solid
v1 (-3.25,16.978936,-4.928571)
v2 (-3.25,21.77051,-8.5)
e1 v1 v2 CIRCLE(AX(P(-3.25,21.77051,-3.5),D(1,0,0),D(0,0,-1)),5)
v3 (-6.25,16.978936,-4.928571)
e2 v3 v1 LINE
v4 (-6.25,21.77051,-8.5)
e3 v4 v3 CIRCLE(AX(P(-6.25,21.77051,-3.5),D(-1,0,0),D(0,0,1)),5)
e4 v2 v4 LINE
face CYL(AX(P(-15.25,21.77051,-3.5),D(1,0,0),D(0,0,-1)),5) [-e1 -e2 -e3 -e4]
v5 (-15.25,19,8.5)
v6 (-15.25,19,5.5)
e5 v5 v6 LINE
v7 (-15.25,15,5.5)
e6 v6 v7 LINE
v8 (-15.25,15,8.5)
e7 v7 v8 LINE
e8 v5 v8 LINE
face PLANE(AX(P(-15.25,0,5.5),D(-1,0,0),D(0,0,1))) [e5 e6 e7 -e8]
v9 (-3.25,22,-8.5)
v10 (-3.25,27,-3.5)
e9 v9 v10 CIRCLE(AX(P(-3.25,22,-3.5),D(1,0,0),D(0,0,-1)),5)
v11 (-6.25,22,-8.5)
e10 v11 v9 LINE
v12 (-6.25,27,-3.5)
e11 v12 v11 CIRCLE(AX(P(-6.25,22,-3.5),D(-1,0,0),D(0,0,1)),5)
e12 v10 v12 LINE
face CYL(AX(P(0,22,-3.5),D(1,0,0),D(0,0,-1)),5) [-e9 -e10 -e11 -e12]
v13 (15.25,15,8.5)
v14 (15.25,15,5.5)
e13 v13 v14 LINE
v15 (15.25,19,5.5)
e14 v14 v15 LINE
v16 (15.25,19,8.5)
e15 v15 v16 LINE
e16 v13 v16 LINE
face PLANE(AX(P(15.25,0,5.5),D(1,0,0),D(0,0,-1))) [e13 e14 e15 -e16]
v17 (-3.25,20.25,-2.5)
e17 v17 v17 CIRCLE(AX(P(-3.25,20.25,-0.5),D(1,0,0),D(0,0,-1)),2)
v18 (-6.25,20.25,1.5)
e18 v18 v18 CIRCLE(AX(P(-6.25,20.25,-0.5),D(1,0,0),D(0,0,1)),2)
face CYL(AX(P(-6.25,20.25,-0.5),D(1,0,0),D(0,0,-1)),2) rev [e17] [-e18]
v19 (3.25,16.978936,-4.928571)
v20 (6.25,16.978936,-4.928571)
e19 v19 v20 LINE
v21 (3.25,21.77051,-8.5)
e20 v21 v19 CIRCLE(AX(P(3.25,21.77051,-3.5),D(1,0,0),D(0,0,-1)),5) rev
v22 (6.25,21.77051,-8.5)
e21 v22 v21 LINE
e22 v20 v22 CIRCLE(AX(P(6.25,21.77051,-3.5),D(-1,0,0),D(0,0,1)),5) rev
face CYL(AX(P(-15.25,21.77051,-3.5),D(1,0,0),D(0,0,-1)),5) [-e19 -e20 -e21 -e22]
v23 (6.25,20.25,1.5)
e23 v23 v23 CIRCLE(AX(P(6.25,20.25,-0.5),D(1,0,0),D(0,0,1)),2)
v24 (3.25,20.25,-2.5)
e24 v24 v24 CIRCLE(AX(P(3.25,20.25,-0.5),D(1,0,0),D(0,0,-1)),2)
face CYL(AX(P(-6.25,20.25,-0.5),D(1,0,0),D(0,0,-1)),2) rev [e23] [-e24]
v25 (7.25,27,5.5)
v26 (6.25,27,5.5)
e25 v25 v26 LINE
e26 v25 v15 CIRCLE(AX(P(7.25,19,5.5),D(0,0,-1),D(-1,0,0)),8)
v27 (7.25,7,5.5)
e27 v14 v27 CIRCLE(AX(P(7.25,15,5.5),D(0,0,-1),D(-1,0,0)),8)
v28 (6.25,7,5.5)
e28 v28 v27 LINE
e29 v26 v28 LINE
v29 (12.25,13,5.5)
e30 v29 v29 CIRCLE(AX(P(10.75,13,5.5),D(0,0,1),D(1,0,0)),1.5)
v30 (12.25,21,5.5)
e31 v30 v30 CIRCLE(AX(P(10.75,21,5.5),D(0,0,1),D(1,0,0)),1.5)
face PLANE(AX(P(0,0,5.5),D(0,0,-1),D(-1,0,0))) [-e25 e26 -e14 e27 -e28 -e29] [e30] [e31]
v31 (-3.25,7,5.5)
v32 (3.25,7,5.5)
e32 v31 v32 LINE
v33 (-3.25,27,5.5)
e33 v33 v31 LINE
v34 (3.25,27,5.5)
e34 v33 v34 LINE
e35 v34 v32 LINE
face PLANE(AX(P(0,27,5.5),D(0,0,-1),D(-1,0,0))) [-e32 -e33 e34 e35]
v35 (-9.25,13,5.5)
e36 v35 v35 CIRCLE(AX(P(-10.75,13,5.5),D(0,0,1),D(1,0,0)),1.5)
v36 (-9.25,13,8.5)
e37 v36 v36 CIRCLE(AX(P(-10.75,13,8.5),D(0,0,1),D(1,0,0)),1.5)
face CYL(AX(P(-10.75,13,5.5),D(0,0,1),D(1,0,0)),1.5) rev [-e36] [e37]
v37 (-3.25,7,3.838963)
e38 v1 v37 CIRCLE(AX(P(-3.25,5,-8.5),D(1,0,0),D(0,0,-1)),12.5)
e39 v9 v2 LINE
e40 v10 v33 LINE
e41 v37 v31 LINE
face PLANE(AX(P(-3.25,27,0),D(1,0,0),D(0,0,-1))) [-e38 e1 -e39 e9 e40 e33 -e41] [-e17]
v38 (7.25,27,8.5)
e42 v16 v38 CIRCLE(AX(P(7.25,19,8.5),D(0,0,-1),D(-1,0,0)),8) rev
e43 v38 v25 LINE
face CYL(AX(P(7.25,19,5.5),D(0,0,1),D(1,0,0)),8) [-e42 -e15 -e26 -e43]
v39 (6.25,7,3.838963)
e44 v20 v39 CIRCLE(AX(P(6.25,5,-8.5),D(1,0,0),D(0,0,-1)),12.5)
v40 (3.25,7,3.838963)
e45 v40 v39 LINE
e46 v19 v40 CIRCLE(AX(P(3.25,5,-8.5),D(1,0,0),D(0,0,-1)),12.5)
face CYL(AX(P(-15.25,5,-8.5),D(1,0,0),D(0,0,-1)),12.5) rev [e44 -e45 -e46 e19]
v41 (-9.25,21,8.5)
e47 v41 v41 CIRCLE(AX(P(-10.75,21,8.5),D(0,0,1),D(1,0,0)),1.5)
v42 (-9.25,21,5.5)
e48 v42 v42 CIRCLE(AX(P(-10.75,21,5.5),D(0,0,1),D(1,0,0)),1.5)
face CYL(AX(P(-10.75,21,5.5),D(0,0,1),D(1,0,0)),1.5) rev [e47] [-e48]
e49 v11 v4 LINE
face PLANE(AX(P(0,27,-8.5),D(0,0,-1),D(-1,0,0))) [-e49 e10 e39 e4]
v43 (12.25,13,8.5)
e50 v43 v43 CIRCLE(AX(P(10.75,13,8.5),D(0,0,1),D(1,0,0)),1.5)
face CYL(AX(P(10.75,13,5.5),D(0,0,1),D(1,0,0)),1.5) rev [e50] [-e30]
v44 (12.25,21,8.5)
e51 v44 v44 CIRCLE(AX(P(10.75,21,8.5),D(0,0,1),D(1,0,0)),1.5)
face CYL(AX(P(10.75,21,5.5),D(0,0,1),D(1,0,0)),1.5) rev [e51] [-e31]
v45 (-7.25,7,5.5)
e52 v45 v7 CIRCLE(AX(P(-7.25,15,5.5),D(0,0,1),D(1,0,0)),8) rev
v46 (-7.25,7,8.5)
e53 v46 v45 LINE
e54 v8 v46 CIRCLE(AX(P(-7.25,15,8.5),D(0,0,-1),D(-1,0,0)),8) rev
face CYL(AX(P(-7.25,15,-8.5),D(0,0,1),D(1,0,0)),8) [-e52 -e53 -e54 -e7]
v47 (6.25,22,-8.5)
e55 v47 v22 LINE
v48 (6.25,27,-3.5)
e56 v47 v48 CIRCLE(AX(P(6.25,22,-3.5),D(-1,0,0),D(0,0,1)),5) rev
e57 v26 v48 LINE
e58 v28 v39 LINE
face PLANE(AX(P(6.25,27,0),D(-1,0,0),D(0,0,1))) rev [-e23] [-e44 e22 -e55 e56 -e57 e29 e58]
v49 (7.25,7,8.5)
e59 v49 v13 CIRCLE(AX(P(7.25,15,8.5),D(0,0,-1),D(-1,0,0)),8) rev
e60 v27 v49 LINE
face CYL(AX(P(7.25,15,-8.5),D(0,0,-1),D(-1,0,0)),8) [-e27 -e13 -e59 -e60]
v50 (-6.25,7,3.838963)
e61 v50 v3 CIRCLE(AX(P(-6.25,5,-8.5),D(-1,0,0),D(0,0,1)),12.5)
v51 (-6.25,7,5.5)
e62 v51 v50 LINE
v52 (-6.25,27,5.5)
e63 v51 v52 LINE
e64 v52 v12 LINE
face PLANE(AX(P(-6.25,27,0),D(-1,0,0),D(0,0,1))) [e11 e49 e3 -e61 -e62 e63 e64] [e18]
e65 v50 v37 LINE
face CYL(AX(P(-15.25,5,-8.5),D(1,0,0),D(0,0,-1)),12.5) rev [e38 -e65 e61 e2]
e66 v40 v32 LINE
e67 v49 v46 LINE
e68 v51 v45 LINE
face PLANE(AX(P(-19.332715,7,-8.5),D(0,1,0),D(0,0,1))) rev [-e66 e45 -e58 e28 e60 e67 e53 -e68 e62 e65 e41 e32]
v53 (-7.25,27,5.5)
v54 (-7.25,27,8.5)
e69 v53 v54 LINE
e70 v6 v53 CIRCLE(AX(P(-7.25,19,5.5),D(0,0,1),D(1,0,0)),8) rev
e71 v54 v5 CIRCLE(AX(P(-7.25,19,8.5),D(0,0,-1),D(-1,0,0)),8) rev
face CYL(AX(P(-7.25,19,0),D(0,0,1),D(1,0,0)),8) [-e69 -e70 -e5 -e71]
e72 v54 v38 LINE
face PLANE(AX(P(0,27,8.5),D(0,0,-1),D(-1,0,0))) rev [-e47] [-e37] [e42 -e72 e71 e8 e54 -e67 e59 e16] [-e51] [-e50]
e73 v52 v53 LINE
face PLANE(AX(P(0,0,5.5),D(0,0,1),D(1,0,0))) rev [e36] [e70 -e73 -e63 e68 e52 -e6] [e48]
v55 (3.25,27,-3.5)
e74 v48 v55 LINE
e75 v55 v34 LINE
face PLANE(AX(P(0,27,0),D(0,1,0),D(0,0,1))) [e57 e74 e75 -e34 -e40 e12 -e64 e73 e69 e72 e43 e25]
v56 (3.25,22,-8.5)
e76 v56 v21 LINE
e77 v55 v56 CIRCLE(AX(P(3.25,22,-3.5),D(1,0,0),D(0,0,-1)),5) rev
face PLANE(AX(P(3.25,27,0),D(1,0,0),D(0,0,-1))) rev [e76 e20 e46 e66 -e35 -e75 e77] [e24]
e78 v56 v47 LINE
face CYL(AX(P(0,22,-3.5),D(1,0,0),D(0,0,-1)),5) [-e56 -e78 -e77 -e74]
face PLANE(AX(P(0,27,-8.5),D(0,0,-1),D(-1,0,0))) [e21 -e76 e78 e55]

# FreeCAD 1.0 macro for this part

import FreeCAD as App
import Part
import Sketcher


def edges_at(feature, points):
    """Names of the edges that pass closest to the given points."""
    edges = feature.Shape.Edges
    near = lambda p: min(range(len(edges)), key=lambda i: edges[i].distToShape(Part.Vertex(*p))[0])
    return sorted({f"Edge{near(p) + 1}" for p in points})


def add_polygon(sketch, points):
    """Adds a closed chain of lines whose ends are joined by coincident constraints."""
    first, n = sketch.GeometryCount, len(points)
    for a, b in zip(points, points[1:] + points[:1]):
        sketch.addGeometry(Part.LineSegment(App.Vector(*a, 0), App.Vector(*b, 0)), False)
    for i in range(n):
        sketch.addConstraint(Sketcher.Constraint("Coincident", first + i, 2, first + (i + 1) % n, 1))

doc = App.newDocument("Part")
body = doc.addObject("PartDesign::Body", "Body")

# Sketch on XZ plane
sketch1 = body.newObject("Sketcher::SketchObject", "Sketch")
sketch1.AttachmentSupport = (doc.getObject("XZ_Plane"), [""])
sketch1.MapMode = "FlatFace"
add_polygon(sketch1, [(-6.25, -8.5), (-6.25, 8.5), (6.25, 8.5), (6.25, -8.5), (3.25, -8.5), (3.25, 5.5), (-3.25, 5.5), (-3.25, -8.5)])  # lines 0-7
sketch1.addConstraint([
    Sketcher.Constraint("Vertical", 0),
    Sketcher.Constraint("Horizontal", 1),
    Sketcher.Constraint("Vertical", 2),
    Sketcher.Constraint("Horizontal", 3),
    Sketcher.Constraint("Vertical", 4),
    Sketcher.Constraint("Horizontal", 5),
    Sketcher.Constraint("Vertical", 6),
    Sketcher.Constraint("Horizontal", 7),
    Sketcher.Constraint("Symmetric", 0, 2, 2, 2, -1, 1),
    Sketcher.Constraint("Symmetric", 3, 2, 6, 2, -2),
    Sketcher.Constraint("DistanceX", 3, 2, 3, 1, 3.0),
    Sketcher.Constraint("DistanceY", 0, 1, 0, 2, 17.0),
    Sketcher.Constraint("DistanceY", 4, 1, 4, 2, 14.0),
    Sketcher.Constraint("DistanceX", 1, 1, 1, 2, 12.5),
])
pad1 = body.newObject("PartDesign::Pad", "Pad")
pad1.Profile = sketch1
pad1.Length = 27
pad1.Reversed = True

# Sketch on YZ plane
sketch2 = body.newObject("Sketcher::SketchObject", "Sketch001")
sketch2.AttachmentSupport = (doc.getObject("YZ_Plane"), [""])
sketch2.MapMode = "FlatFace"
sketch2.AttachmentOffset = App.Placement(App.Vector(0, 0, 6.25), App.Rotation())
sketch2.addGeometry(Part.Circle(App.Vector(20.25, -0.5, 0), App.Vector(0, 0, 1), 2), False)
sketch2.addConstraint([
    Sketcher.Constraint("Diameter", 0, 4.0),
    Sketcher.Constraint("DistanceY", 0, 3, -1, 1, 0.5),
    Sketcher.Constraint("DistanceX", -1, 1, 0, 3, 20.25),
])
pocket1 = body.newObject("PartDesign::Pocket", "Pocket")
pocket1.Profile = sketch2
pocket1.Type = "ThroughAll"
doc.recompute()

fillet = body.newObject("PartDesign::Fillet", "Fillet")
fillet.Base = (pocket1, edges_at(pocket1, [
    (-4.75, 0, -8.5),
    (4.75, 0, -8.5),
    (-4.75, 27, -8.5),
    (4.75, 27, -8.5),
]))
fillet.Radius = 5

# Sketch on XY plane
sketch3 = body.newObject("Sketcher::SketchObject", "Sketch002")
sketch3.AttachmentSupport = (doc.getObject("XY_Plane"), [""])
sketch3.MapMode = "FlatFace"
sketch3.AttachmentOffset = App.Placement(App.Vector(0, 0, 8.5), App.Rotation())
add_polygon(sketch3, [(-15.25, 27), (-15.25, 0), (-6.25, 0), (-6.25, 27)])  # lines 0-3
sketch3.addGeometry(Part.Circle(App.Vector(-10.75, 13, 0), App.Vector(0, 0, 1), 1.5), False)  # 4
sketch3.addGeometry(Part.Circle(App.Vector(-10.75, 21, 0), App.Vector(0, 0, 1), 1.5), False)  # 5
add_polygon(sketch3, [(6.25, 27), (6.25, 0), (15.25, 0), (15.25, 27)])  # lines 6-9
sketch3.addGeometry(Part.Circle(App.Vector(10.75, 13, 0), App.Vector(0, 0, 1), 1.5), False)  # 10
sketch3.addGeometry(Part.Circle(App.Vector(10.75, 21, 0), App.Vector(0, 0, 1), 1.5), False)  # 11
sketch3.addConstraint([
    Sketcher.Constraint("Vertical", 0),
    Sketcher.Constraint("Horizontal", 1),
    Sketcher.Constraint("Vertical", 2),
    Sketcher.Constraint("Horizontal", 3),
    Sketcher.Constraint("Vertical", 6),
    Sketcher.Constraint("Horizontal", 7),
    Sketcher.Constraint("Vertical", 8),
    Sketcher.Constraint("Horizontal", 9),
    Sketcher.Constraint("Equal", 4, 5),
    Sketcher.Constraint("Equal", 5, 10),
    Sketcher.Constraint("Equal", 10, 11),
    Sketcher.Constraint("Symmetric", 1, 2, 6, 2, -1, 1),
    Sketcher.Constraint("Symmetric", 4, 3, 10, 3, -2),
    Sketcher.Constraint("Symmetric", 5, 3, 11, 3, -2),
    Sketcher.Constraint("Symmetric", 0, 2, 7, 2, -2),
    Sketcher.Constraint("Horizontal", 3, 2, 8, 2),
    Sketcher.Constraint("Vertical", 4, 3, 5, 3),
    Sketcher.Constraint("Diameter", 4, 3.0),
    Sketcher.Constraint("DistanceX", 1, 1, 1, 2, 9.0),
    Sketcher.Constraint("DistanceY", 0, 2, 0, 1, 27.0),
    Sketcher.Constraint("DistanceY", -1, 1, 4, 3, 13.0),
    Sketcher.Constraint("DistanceY", -1, 1, 5, 3, 21.0),
    Sketcher.Constraint("DistanceX", 0, 2, 10, 3, 26.0),
    Sketcher.Constraint("DistanceX", 4, 3, 10, 3, 21.5),
])
pad2 = body.newObject("PartDesign::Pad", "Pad001")
pad2.Profile = sketch3
pad2.Length = 3
pad2.Reversed = True
doc.recompute()

fillet2 = body.newObject("PartDesign::Fillet", "Fillet001")
fillet2.Base = (pad2, edges_at(pad2, [(-15.25, 27, 7), (15.25, 27, 7)]))
fillet2.Radius = 8

# Sketch on XY plane
sketch4 = body.newObject("Sketcher::SketchObject", "Sketch003")
sketch4.AttachmentSupport = (doc.getObject("XY_Plane"), [""])
sketch4.MapMode = "FlatFace"
sketch4.AttachmentOffset = App.Placement(App.Vector(0, 0, 8.5), App.Rotation())
add_polygon(sketch4, [(-19.332715, 7), (-19.332715, -7), (19.332715, -7), (19.332715, 7)])  # lines 0-3
sketch4.addConstraint([
    Sketcher.Constraint("Vertical", 0),
    Sketcher.Constraint("Horizontal", 1),
    Sketcher.Constraint("Vertical", 2),
    Sketcher.Constraint("Horizontal", 3),
    Sketcher.Constraint("Symmetric", 0, 2, 2, 2, -1, 1),
    Sketcher.Constraint("DistanceY", 0, 2, 0, 1, 14.0),
    Sketcher.Constraint("DistanceX", 1, 1, 1, 2, 38.66543),
])
pocket2 = body.newObject("PartDesign::Pocket", "Pocket001")
pocket2.Profile = sketch4
pocket2.Type = "ThroughAll"
doc.recompute()

fillet3 = body.newObject("PartDesign::Fillet", "Fillet002")
fillet3.Base = (pocket2, edges_at(pocket2, [(4.75, 7, -8.5), (-4.75, 7, -8.5)]))
fillet3.Radius = 5
doc.recompute()

fillet4 = body.newObject("PartDesign::Fillet", "Fillet003")
fillet4.Base = (fillet3, edges_at(fillet3, [(-15.25, 7, 7), (15.25, 7, 7)]))
fillet4.Radius = 8

# Sketch on YZ plane
sketch5 = body.newObject("Sketcher::SketchObject", "Sketch004")
sketch5.AttachmentSupport = (doc.getObject("YZ_Plane"), [""])
sketch5.MapMode = "FlatFace"
sketch5.AttachmentOffset = App.Placement(App.Vector(0, 0, 6.25), App.Rotation())
sketch5.addGeometry(Part.Circle(App.Vector(5, -8.5, 0), App.Vector(0, 0, 1), 12.5), False)
sketch5.addConstraint([
    Sketcher.Constraint("Diameter", 0, 25.0),
    Sketcher.Constraint("DistanceX", -1, 1, 0, 3, 5.0),
    Sketcher.Constraint("DistanceY", 0, 3, -1, 1, 8.5),
])
pocket3 = body.newObject("PartDesign::Pocket", "Pocket002")
pocket3.Profile = sketch5
pocket3.Type = "ThroughAll"
doc.recompute()

fillet5 = body.newObject("PartDesign::Fillet", "Fillet004")
fillet5.Base = (pocket3, edges_at(pocket3, [(4.75, 17.5, -8.5), (-4.75, 17.5, -8.5)]))
fillet5.Radius = 5

doc.recompute()
